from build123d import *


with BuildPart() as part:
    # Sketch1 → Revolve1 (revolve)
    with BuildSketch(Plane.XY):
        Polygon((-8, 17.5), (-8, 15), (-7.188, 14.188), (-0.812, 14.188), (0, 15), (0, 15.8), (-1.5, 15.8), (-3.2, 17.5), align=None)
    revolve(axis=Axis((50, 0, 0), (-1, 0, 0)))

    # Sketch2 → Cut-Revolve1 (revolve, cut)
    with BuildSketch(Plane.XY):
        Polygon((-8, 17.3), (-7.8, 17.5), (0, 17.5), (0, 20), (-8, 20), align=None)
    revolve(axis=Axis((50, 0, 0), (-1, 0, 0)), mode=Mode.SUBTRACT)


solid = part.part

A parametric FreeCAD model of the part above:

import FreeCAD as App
import Part
import Sketcher

V = App.Vector
Q = App.Units.Quantity

doc = App.newDocument("Part")
body = doc.addObject("PartDesign::Body", "Body")

sketch1 = body.newObject("Sketcher::SketchObject", "Sketch")
sketch1.AttachmentSupport = (doc.getObject("XY_Plane"), [""])
sketch1.MapMode = "FlatFace"
sketch1.addGeometry([
    Part.LineSegment(V(-8, 17.5, 0), V(-8, 15, 0)),
    Part.LineSegment(V(-8, 15, 0), V(-7.2, 14.2, 0)),
    Part.LineSegment(V(-7.2, 14.2, 0), V(-0.8, 14.2, 0)),
    Part.LineSegment(V(-0.8, 14.2, 0), V(0, 15, 0)),
    Part.LineSegment(V(0, 15, 0), V(0, 15.8, 0)),
    Part.LineSegment(V(0, 15.8, 0), V(-1.5, 15.8, 0)),
    Part.LineSegment(V(-1.5, 15.8, 0), V(-3.2, 17.5, 0)),
    Part.LineSegment(V(-3.2, 17.5, 0), V(-8, 17.5, 0)),
], False)
sketch1.addConstraint([
    Sketcher.Constraint("Coincident", 0, 2, 1, 1),
    Sketcher.Constraint("Coincident", 1, 2, 2, 1),
    Sketcher.Constraint("Coincident", 2, 2, 3, 1),
    Sketcher.Constraint("Coincident", 3, 2, 4, 1),
    Sketcher.Constraint("Coincident", 4, 2, 5, 1),
    Sketcher.Constraint("Coincident", 5, 2, 6, 1),
    Sketcher.Constraint("Coincident", 6, 2, 7, 1),
    Sketcher.Constraint("Coincident", 7, 2, 0, 1),
    Sketcher.Constraint("Vertical", 0),
    Sketcher.Constraint("Horizontal", 2),
    Sketcher.Constraint("Vertical", 4),
    Sketcher.Constraint("Horizontal", 5),
    Sketcher.Constraint("Horizontal", 7),
    Sketcher.Constraint("PointOnObject", 3, 2, -2),
    Sketcher.Constraint("Perpendicular", 1, 3),
    Sketcher.Constraint("Perpendicular", 3, 6),
    Sketcher.Constraint("Horizontal", 0, 2, 3, 2),
    Sketcher.Constraint("Equal", 1, 3),
    Sketcher.Constraint("DistanceX", 5, 2, 5, 1, Q("1.5 mm")),
    Sketcher.Constraint("DistanceX", 7, 2, 7, 1, Q("4.8 mm")),
    Sketcher.Constraint("DistanceY", 0, 2, 0, 1, Q("2.5 mm")),
    Sketcher.Constraint("DistanceY", 4, 1, 4, 2, Q("0.8 mm")),
    Sketcher.Constraint("DistanceY", -1, 1, 0, 2, Q("15 mm")),
    Sketcher.Constraint("DistanceX", 2, 1, 2, 2, Q("6.376 mm")),
])
revolution = body.newObject("PartDesign::Revolution", "Revolution")
revolution.Profile = sketch1
revolution.ReferenceAxis = (sketch1, ["H_Axis"])
revolution.Angle = 360

sketch2 = body.newObject("Sketcher::SketchObject", "Sketch001")
sketch2.AttachmentSupport = (doc.getObject("XY_Plane"), [""])
sketch2.MapMode = "FlatFace"
sketch2.addGeometry([
    Part.LineSegment(V(-8, 17.3, 0), V(-7.8, 17.5, 0)),
    Part.LineSegment(V(-7.8, 17.5, 0), V(0, 17.5, 0)),
    Part.LineSegment(V(0, 17.5, 0), V(0, 20, 0)),
    Part.LineSegment(V(0, 20, 0), V(-8, 20, 0)),
    Part.LineSegment(V(-8, 20, 0), V(-8, 17.3, 0)),
], False)
sketch2.addConstraint([
    Sketcher.Constraint("Coincident", 0, 2, 1, 1),
    Sketcher.Constraint("Coincident", 1, 2, 2, 1),
    Sketcher.Constraint("Coincident", 2, 2, 3, 1),
    Sketcher.Constraint("Coincident", 3, 2, 4, 1),
    Sketcher.Constraint("Coincident", 4, 2, 0, 1),
    Sketcher.Constraint("Horizontal", 1),
    Sketcher.Constraint("Vertical", 2),
    Sketcher.Constraint("Horizontal", 3),
    Sketcher.Constraint("Vertical", 4),
    Sketcher.Constraint("PointOnObject", 1, 2, -2),
    Sketcher.Constraint("DistanceX", 3, 2, 3, 1, Q("8 mm")),
    Sketcher.Constraint("Angle", 0, Q("45 deg")),
    Sketcher.Constraint("DistanceX", 1, 1, 1, 2, Q("7.8 mm")),
    Sketcher.Constraint("DistanceY", 2, 1, 2, 2, Q("2.5 mm")),
    Sketcher.Constraint("DistanceY", -1, 1, 2, 2, Q("20 mm")),
])
groove = body.newObject("PartDesign::Groove", "Groove")
groove.Profile = sketch2
groove.ReferenceAxis = (sketch2, ["H_Axis"])
groove.Angle = 360

doc.recompute()
